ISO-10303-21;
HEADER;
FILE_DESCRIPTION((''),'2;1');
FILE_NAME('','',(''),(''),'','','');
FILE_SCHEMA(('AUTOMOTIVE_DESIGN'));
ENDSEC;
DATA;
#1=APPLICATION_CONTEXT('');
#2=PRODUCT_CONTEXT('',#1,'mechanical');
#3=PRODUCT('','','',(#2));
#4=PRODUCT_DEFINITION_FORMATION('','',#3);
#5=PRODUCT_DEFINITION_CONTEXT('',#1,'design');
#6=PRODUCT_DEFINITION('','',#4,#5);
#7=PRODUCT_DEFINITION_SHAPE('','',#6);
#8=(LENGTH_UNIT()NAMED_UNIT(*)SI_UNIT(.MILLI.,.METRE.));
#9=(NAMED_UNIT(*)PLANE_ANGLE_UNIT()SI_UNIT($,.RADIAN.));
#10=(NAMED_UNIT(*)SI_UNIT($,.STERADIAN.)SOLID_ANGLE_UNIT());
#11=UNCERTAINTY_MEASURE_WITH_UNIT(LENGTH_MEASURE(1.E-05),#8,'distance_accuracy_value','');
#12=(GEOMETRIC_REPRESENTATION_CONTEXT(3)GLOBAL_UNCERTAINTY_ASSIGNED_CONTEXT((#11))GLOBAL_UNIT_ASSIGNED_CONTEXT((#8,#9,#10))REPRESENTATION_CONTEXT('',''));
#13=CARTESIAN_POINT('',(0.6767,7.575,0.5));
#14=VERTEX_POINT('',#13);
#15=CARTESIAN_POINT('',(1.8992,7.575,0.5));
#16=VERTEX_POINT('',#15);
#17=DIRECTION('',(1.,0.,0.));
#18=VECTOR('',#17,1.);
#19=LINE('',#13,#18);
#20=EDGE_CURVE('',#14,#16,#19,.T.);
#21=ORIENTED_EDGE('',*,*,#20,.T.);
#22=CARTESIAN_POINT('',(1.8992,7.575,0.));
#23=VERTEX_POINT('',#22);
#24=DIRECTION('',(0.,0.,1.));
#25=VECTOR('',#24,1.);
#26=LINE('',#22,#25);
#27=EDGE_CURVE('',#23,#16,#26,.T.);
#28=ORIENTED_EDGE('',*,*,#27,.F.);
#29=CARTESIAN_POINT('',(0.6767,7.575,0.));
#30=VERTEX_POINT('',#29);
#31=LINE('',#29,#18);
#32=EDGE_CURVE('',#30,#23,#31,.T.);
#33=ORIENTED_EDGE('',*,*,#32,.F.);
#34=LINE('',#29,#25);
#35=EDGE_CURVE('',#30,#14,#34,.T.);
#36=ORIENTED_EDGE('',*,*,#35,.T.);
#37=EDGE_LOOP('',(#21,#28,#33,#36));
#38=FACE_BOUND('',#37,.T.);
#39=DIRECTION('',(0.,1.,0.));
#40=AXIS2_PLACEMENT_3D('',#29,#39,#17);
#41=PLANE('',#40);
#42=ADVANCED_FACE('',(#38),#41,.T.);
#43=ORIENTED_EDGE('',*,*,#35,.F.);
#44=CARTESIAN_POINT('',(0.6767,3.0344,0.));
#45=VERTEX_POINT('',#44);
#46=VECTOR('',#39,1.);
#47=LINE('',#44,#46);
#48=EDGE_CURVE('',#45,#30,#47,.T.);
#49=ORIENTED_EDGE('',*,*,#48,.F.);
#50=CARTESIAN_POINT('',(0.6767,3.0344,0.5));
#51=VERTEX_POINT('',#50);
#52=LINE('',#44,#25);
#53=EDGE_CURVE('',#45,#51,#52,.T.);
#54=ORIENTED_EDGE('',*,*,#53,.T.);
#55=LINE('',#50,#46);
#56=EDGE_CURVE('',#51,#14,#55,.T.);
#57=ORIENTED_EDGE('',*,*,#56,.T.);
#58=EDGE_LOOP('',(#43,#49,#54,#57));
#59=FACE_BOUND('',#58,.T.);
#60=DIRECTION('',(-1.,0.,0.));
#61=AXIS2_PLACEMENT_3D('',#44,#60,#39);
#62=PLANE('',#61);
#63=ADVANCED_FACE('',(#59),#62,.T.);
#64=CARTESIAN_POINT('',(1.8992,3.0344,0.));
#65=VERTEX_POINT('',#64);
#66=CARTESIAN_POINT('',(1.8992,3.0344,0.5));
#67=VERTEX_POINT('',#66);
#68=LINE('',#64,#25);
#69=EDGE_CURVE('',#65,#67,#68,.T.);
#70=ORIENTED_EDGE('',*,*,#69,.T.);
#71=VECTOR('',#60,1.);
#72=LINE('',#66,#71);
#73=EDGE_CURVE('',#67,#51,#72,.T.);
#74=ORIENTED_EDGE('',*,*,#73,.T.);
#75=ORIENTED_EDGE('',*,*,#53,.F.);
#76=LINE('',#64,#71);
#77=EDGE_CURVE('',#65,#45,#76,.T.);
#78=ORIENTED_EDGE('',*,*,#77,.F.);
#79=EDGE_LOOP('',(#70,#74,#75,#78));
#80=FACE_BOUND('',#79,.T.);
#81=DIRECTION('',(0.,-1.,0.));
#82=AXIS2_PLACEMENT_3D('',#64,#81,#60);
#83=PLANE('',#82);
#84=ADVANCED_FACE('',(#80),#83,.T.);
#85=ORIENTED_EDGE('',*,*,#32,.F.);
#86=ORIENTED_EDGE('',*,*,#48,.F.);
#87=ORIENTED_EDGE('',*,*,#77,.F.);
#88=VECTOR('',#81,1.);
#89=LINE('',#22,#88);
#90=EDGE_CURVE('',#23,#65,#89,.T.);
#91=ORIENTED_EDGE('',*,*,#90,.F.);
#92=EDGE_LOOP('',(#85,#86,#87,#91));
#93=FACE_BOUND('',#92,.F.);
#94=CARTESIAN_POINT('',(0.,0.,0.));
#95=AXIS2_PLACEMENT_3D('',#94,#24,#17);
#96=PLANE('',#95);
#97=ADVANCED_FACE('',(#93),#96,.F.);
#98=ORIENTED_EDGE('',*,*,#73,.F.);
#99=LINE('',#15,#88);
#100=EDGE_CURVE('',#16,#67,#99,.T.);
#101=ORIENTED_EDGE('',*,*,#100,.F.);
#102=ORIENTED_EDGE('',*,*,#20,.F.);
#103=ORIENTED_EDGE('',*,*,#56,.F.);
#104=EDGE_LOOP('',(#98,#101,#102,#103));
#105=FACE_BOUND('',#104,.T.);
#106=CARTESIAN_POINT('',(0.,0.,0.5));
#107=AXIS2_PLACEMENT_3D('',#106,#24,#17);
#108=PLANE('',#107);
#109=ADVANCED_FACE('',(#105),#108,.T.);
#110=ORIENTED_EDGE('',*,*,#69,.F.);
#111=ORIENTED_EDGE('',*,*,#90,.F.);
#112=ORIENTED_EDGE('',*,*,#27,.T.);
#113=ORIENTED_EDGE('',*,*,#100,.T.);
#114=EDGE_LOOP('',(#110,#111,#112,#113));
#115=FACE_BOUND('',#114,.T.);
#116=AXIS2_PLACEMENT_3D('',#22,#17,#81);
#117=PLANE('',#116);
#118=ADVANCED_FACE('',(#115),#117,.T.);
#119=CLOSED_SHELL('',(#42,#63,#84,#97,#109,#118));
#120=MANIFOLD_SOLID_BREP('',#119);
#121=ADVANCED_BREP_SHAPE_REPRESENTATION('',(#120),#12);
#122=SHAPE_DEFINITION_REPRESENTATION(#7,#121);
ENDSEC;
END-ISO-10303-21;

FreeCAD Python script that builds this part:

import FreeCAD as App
import Part
import Sketcher

V = App.Vector
Q = App.Units.Quantity

doc = App.newDocument("Part")
body = doc.addObject("PartDesign::Body", "Body")

sketch1 = body.newObject("Sketcher::SketchObject", "Sketch")
sketch1.AttachmentSupport = (doc.getObject("XY_Plane"), [""])
sketch1.MapMode = "FlatFace"
sketch1.addGeometry(Part.LineSegment(V(1.9, 7.6, 0), V(0.7, 7.6, 0)), False)
sketch1.addGeometry(Part.LineSegment(V(0.7, 7.6, 0), V(0.7, 3, 0)), False)
sketch1.addGeometry(Part.LineSegment(V(0.7, 3, 0), V(1.9, 3, 0)), False)
sketch1.addGeometry(Part.LineSegment(V(1.9, 3, 0), V(1.9, 7.6, 0)), False)
sketch1.addConstraint(Sketcher.Constraint("Coincident", 0, 2, 1, 1))
sketch1.addConstraint(Sketcher.Constraint("Coincident", 1, 2, 2, 1))
sketch1.addConstraint(Sketcher.Constraint("Coincident", 2, 2, 3, 1))
sketch1.addConstraint(Sketcher.Constraint("Coincident", 3, 2, 0, 1))
sketch1.addConstraint(Sketcher.Constraint("Horizontal", 0))
sketch1.addConstraint(Sketcher.Constraint("Vertical", 1))
sketch1.addConstraint(Sketcher.Constraint("Horizontal", 2))
sketch1.addConstraint(Sketcher.Constraint("Vertical", 3))
sketch1.addConstraint(Sketcher.Constraint("DistanceX", 0, 2, 0, 1, Q("1.2225 mm")))
sketch1.addConstraint(Sketcher.Constraint("DistanceY", 1, 2, 1, 1, Q("4.5406 mm")))
sketch1.addConstraint(Sketcher.Constraint("DistanceY", -1, 1, 0, 2, Q("7.575 mm")))
sketch1.addConstraint(Sketcher.Constraint("DistanceX", -1, 1, 0, 2, Q("0.6767 mm")))
pad1 = body.newObject("PartDesign::Pad", "Pad")
pad1.Profile = sketch1
pad1.Length = 0.5

doc.recompute()
